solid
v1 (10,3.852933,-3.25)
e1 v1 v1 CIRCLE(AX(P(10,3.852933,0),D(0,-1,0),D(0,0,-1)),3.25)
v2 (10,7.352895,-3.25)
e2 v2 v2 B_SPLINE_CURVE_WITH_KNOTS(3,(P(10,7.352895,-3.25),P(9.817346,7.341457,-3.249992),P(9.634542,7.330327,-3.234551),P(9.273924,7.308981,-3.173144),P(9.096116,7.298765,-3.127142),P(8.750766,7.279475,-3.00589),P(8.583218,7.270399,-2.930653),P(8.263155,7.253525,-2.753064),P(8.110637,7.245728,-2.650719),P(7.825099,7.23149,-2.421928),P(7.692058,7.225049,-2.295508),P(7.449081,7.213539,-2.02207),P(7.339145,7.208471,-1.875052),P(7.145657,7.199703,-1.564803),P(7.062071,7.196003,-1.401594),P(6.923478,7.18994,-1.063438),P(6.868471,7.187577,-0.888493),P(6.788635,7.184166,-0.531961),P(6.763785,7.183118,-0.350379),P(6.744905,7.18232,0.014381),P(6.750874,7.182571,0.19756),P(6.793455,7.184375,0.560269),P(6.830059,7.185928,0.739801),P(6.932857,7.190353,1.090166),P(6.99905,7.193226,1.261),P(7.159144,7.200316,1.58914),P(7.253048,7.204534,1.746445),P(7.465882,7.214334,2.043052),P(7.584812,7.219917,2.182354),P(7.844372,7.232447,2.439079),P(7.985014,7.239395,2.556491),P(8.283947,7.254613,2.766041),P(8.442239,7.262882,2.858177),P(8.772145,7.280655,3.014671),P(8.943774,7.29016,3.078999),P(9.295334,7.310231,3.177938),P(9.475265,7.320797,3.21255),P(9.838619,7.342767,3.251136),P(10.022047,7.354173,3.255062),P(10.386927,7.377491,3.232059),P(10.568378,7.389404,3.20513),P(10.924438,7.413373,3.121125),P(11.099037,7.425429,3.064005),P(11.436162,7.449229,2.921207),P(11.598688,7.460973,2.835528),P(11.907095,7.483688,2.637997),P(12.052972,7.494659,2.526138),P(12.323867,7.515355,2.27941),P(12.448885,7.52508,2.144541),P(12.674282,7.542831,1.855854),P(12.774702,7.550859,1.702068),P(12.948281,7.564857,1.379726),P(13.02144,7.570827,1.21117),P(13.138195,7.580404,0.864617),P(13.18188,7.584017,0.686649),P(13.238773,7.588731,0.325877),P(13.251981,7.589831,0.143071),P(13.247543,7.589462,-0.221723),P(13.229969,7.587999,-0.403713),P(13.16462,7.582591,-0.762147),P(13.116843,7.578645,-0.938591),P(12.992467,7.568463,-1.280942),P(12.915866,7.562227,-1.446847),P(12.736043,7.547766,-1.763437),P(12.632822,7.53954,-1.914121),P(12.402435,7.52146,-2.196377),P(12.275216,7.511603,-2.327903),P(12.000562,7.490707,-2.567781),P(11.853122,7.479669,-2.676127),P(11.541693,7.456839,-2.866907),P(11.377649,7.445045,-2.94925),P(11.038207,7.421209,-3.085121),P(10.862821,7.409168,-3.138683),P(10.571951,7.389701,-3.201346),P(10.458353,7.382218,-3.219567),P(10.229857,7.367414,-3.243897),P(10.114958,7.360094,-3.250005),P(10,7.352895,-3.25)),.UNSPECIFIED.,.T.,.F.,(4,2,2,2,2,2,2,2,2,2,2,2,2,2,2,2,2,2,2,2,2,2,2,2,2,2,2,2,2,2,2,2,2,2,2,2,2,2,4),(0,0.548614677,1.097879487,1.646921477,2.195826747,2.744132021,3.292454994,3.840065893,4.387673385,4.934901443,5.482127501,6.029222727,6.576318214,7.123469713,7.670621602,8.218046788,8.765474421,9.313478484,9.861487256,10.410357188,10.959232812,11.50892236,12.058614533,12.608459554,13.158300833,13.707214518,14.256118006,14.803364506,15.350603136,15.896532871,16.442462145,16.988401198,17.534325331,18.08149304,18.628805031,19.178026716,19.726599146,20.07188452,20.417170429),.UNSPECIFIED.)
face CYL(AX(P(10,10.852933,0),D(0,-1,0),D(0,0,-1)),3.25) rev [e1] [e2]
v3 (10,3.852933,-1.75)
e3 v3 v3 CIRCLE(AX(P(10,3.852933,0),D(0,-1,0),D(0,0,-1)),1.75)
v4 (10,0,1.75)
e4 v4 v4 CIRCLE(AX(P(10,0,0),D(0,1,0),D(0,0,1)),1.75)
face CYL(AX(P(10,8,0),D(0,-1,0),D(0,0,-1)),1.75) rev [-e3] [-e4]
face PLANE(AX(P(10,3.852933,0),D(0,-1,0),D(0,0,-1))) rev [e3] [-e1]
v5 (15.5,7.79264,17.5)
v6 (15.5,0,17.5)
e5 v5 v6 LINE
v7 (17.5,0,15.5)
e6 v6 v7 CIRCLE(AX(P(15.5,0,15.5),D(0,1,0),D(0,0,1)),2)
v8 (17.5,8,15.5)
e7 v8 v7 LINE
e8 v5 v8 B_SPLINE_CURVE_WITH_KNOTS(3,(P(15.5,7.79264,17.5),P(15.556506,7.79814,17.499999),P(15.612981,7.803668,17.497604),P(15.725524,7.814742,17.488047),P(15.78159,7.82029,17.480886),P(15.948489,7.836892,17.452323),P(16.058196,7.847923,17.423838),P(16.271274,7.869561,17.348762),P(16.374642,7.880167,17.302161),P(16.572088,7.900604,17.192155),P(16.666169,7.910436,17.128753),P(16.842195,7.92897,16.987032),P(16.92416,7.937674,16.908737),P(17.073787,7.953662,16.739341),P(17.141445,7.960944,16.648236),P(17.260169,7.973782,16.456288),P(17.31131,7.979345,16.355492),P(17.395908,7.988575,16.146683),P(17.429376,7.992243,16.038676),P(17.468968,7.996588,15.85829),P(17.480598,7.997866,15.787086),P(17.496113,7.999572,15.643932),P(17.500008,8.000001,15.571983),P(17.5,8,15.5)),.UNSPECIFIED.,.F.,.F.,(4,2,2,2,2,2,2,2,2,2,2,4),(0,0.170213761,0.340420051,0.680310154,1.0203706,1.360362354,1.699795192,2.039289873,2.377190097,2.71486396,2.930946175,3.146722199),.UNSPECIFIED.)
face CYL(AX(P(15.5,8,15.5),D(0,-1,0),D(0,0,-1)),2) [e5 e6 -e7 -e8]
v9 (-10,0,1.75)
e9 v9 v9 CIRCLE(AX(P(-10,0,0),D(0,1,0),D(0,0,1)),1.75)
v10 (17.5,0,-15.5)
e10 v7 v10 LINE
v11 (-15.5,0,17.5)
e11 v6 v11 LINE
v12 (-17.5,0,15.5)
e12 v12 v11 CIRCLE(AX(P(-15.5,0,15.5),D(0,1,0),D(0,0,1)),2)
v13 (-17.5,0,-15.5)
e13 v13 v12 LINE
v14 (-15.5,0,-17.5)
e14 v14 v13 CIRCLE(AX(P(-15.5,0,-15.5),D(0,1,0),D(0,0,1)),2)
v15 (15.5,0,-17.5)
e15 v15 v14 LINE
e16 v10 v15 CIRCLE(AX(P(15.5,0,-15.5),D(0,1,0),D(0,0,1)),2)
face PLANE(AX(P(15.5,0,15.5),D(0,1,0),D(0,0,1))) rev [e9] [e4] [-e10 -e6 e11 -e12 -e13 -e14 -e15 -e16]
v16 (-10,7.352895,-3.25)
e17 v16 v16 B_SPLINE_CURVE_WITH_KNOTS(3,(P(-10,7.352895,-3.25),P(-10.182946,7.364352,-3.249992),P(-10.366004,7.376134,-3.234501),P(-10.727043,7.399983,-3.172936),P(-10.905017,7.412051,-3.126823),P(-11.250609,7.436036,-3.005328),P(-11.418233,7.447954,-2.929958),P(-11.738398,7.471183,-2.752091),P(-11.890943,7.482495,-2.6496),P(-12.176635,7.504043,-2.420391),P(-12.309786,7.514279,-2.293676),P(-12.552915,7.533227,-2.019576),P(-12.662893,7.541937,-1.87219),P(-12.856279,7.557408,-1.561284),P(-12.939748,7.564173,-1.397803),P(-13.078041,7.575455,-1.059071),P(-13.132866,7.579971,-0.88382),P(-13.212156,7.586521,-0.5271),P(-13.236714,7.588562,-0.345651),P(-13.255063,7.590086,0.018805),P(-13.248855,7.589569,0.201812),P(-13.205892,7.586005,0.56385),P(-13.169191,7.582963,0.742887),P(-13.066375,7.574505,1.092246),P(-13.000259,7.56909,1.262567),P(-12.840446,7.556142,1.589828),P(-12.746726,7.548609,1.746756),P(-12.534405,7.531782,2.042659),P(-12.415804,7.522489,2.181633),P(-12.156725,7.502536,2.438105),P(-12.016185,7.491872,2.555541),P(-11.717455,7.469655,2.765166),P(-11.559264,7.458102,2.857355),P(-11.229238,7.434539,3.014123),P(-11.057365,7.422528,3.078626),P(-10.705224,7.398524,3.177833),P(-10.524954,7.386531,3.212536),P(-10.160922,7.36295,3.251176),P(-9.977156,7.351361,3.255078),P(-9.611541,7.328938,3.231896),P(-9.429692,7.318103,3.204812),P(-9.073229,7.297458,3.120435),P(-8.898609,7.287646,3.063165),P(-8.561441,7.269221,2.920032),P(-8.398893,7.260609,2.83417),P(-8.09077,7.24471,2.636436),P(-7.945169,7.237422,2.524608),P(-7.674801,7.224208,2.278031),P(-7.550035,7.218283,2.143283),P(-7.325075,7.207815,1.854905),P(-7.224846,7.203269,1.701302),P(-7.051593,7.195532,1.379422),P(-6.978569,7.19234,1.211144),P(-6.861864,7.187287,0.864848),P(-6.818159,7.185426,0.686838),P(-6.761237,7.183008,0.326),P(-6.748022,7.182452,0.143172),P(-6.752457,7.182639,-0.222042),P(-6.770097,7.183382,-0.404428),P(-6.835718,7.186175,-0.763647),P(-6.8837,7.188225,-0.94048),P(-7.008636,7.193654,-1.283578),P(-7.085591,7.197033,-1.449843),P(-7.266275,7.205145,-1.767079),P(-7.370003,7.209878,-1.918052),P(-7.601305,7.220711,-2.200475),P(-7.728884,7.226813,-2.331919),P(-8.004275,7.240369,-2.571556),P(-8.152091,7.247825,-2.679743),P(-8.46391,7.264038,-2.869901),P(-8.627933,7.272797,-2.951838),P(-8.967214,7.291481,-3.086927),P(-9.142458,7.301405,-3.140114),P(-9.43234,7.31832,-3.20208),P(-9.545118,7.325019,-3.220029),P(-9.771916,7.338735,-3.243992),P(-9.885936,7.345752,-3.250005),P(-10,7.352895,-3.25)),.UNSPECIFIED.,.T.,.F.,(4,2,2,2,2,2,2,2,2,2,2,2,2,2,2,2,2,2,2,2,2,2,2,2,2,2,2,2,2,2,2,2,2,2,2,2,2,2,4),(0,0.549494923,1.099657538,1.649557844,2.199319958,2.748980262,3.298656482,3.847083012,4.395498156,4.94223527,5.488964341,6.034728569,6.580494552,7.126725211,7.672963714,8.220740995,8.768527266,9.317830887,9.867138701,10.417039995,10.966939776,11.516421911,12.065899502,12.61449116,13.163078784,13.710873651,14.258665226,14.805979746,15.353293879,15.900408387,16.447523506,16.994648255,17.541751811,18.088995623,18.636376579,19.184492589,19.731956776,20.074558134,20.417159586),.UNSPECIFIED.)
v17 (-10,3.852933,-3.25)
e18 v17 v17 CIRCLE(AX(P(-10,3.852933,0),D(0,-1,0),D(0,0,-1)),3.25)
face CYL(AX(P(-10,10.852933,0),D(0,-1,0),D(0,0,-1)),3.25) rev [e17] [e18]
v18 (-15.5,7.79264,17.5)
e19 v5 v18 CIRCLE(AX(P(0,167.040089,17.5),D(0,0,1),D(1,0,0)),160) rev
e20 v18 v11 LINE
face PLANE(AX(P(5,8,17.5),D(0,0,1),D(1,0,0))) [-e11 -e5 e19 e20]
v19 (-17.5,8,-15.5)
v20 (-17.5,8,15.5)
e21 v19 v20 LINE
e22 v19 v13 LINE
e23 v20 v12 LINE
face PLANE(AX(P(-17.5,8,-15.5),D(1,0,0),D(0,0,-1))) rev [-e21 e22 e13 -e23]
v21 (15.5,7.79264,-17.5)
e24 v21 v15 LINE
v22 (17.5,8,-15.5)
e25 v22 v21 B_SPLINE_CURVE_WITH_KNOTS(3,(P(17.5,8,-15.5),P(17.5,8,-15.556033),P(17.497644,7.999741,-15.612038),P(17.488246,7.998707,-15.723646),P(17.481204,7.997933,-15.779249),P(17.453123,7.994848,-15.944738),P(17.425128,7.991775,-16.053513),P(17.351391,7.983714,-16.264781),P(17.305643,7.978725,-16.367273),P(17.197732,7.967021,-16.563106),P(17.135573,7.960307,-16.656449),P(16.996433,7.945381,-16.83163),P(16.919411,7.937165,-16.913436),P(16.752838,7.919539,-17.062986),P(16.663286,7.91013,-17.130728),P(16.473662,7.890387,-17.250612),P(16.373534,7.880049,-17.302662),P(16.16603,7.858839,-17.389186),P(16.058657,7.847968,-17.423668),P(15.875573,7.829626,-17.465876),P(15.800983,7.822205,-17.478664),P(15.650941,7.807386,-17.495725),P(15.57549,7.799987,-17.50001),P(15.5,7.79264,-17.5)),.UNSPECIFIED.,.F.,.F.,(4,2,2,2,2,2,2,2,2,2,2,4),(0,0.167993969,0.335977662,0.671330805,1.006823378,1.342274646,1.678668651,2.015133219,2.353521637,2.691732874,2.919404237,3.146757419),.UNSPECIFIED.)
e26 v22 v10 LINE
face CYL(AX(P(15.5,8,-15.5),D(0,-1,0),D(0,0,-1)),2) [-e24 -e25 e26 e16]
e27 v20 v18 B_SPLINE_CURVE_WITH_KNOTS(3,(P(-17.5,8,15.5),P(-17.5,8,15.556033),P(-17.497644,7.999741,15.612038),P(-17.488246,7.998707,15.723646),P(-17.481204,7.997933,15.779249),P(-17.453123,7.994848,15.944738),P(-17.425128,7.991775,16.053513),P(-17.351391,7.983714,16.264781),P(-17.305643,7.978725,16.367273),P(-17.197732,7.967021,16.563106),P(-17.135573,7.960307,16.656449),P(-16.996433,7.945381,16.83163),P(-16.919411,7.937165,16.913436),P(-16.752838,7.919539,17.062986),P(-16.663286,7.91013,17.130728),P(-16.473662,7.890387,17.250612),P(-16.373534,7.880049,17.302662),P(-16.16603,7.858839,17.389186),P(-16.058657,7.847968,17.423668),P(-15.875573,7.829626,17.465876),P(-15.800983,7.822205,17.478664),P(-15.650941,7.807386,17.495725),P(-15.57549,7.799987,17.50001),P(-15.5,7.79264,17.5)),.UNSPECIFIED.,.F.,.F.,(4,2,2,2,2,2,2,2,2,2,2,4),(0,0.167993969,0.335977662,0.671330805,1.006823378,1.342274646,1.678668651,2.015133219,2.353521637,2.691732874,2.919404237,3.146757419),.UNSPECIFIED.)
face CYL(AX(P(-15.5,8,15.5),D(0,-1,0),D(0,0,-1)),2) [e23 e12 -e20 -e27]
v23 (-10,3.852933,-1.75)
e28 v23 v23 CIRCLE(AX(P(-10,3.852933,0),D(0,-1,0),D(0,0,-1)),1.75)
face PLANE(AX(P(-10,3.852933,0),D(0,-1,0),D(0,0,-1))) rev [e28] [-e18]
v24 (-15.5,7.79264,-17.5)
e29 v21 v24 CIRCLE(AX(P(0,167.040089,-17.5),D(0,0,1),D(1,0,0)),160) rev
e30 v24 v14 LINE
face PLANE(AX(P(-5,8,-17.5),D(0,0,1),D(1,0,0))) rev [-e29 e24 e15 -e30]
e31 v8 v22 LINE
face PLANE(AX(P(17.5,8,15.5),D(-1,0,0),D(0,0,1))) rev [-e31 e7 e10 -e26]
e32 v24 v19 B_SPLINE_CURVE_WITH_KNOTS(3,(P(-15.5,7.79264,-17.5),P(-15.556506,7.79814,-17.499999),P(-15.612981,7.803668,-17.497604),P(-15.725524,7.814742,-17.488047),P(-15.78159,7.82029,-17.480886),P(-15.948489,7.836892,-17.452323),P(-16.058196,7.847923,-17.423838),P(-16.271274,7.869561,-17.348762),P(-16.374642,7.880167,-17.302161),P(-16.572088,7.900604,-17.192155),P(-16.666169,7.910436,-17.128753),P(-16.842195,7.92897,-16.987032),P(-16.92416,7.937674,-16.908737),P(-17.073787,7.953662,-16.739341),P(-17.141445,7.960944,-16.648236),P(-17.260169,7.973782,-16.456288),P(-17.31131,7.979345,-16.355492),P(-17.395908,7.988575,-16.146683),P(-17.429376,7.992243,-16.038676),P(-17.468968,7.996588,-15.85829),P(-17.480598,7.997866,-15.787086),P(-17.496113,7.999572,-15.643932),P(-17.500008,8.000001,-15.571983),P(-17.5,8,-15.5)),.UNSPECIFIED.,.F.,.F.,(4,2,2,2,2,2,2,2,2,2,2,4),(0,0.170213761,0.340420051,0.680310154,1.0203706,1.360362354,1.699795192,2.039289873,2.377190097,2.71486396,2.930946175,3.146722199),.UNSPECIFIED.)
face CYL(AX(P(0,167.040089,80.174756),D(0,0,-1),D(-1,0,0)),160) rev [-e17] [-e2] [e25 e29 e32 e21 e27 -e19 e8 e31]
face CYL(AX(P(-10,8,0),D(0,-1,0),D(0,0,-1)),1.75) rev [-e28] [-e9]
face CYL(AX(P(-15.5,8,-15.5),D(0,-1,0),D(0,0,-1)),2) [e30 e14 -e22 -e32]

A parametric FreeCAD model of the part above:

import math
import FreeCAD as App
import Part
import Sketcher
from FreeCAD import Vector

doc = App.newDocument("Part")
body = doc.addObject("PartDesign::Body", "Body")

sketch1 = body.newObject("Sketcher::SketchObject", "Sketch")
sketch1.AttachmentSupport = (doc.getObject("XZ_Plane"), [""])
sketch1.MapMode = "FlatFace"
sketch1.addGeometry([
    Part.ArcOfCircle(Part.Circle(Vector(15.5, -15.5, 0), Vector(0, 0, 1), 2), math.radians(-90), math.radians(0)),
    Part.LineSegment(Vector(15.5, -17.5, 0), Vector(-15.5, -17.5, 0)),
    Part.ArcOfCircle(Part.Circle(Vector(-15.5, -15.5, 0), Vector(0, 0, 1), 2), math.radians(-180), math.radians(-90)),
    Part.LineSegment(Vector(-17.5, -15.5, 0), Vector(-17.5, 15.5, 0)),
    Part.ArcOfCircle(Part.Circle(Vector(-15.5, 15.5, 0), Vector(0, 0, 1), 2), math.radians(90), math.radians(180)),
    Part.LineSegment(Vector(-15.5, 17.5, 0), Vector(15.5, 17.5, 0)),
    Part.ArcOfCircle(Part.Circle(Vector(15.5, 15.5, 0), Vector(0, 0, 1), 2), math.radians(0), math.radians(90)),
    Part.LineSegment(Vector(17.5, 15.5, 0), Vector(17.5, -15.5, 0)),
    Part.Circle(Vector(-10, 0, 0), Vector(0, 0, 1), 1.8),
    Part.Circle(Vector(10, 0, 0), Vector(0, 0, 1), 1.8),
], False)
sketch1.addConstraint([
    Sketcher.Constraint("Tangent", 0, 1, 1, 1),
    Sketcher.Constraint("Tangent", 1, 2, 2, 2),
    Sketcher.Constraint("Tangent", 2, 1, 3, 1),
    Sketcher.Constraint("Tangent", 3, 2, 4, 2),
    Sketcher.Constraint("Tangent", 4, 1, 5, 1),
    Sketcher.Constraint("Tangent", 5, 2, 6, 2),
    Sketcher.Constraint("Tangent", 6, 1, 7, 1),
    Sketcher.Constraint("Tangent", 7, 2, 0, 2),
    Sketcher.Constraint("Horizontal", 1),
    Sketcher.Constraint("Vertical", 3),
    Sketcher.Constraint("Horizontal", 5),
    Sketcher.Constraint("Vertical", 7),
    Sketcher.Constraint("Equal", 0, 2),
    Sketcher.Constraint("Equal", 2, 4),
    Sketcher.Constraint("Equal", 4, 6),
    Sketcher.Constraint("Equal", 8, 9),
    Sketcher.Constraint("Symmetric", 0, 3, 4, 3, -1, 1),
    Sketcher.Constraint("Symmetric", 8, 3, 9, 3, -1, 1),
    Sketcher.Constraint("PointOnObject", 8, 3, -1),
    Sketcher.Constraint("Equal", 5, 3),
    Sketcher.Constraint("Radius", 0, 2.0),
    Sketcher.Constraint("Diameter", 8, 3.5),
    Sketcher.Constraint("DistanceX", 1, 2, 1, 1, 31.0),
    Sketcher.Constraint("DistanceX", 8, 3, -1, 1, 10.0),
])
pad1 = body.newObject("PartDesign::Pad", "Pad")
pad1.Profile = sketch1
pad1.Length = 8
pad1.Reversed = True

sketch2 = body.newObject("Sketcher::SketchObject", "Sketch001")
sketch2.AttachmentSupport = (doc.getObject("XY_Plane"), [""])
sketch2.MapMode = "FlatFace"
sketch2.AttachmentOffset = App.Placement(Vector(0, 0, 17.5), App.Rotation())
sketch2.addGeometry([
    Part.LineSegment(Vector(-99, 17, 0), Vector(-18, 8, 0)),
    Part.ArcOfCircle(Part.Circle(Vector(0, 167, 0), Vector(0, 0, 1), 160), math.radians(-96.28), math.radians(-83.72)),
    Part.LineSegment(Vector(18, 8, 0), Vector(99, 17, 0)),
    Part.LineSegment(Vector(99, 17, 0), Vector(99, 181, 0)),
    Part.LineSegment(Vector(99, 181, 0), Vector(-99, 181, 0)),
    Part.LineSegment(Vector(-99, 181, 0), Vector(-99, 17, 0)),
], False)
sketch2.addConstraint([
    Sketcher.Constraint("Tangent", 0, 2, 1, 1),
    Sketcher.Constraint("Tangent", 1, 2, 2, 1),
    Sketcher.Constraint("Coincident", 2, 2, 3, 1),
    Sketcher.Constraint("Coincident", 3, 2, 4, 1),
    Sketcher.Constraint("Coincident", 4, 2, 5, 1),
    Sketcher.Constraint("Coincident", 5, 2, 0, 1),
    Sketcher.Constraint("Vertical", 3),
    Sketcher.Constraint("Horizontal", 4),
    Sketcher.Constraint("Vertical", 5),
    Sketcher.Constraint("Symmetric", 0, 2, 1, 2, -2),
    Sketcher.Constraint("Horizontal", 2, 2, 5, 2),
    Sketcher.Constraint("Radius", 1, 160.0),
    Sketcher.Constraint("DistanceY", -1, 1, 0, 2, 8.0),
    Sketcher.Constraint("DistanceX", 0, 2, 1, 2, 35.0),
    Sketcher.Constraint("DistanceX", 4, 2, 4, 1, 197.629012),
    Sketcher.Constraint("DistanceY", 3, 1, 3, 2, 163.610585),
])
pocket1 = body.newObject("PartDesign::Pocket", "Pocket")
pocket1.Profile = sketch2
pocket1.Type = "ThroughAll"
pocket1.Midplane = True

sketch3 = body.newObject("Sketcher::SketchObject", "Sketch002")
sketch3.AttachmentSupport = (doc.getObject("XZ_Plane"), [""])
sketch3.MapMode = "FlatFace"
sketch3.AttachmentOffset = App.Placement(Vector(0, 0, -7.352933), App.Rotation())
sketch3.addGeometry([
    Part.Circle(Vector(-10, 0, 0), Vector(0, 0, 1), 3.2),
    Part.Circle(Vector(10, 0, 0), Vector(0, 0, 1), 3.2),
], False)
sketch3.addConstraint([
    Sketcher.Constraint("Equal", 0, 1),
    Sketcher.Constraint("Symmetric", 0, 3, 1, 3, -1, 1),
    Sketcher.Constraint("PointOnObject", 0, 3, -1),
    Sketcher.Constraint("Diameter", 0, 6.5),
    Sketcher.Constraint("DistanceX", 0, 3, -1, 1, 10.0),
])
pocket2 = body.newObject("PartDesign::Pocket", "Pocket001")
pocket2.Profile = sketch3
pocket2.Type = "TwoLengths"
pocket2.Length = 3.5
pocket2.Length2 = 3.5
pocket2.Reversed = True

doc.recompute()
